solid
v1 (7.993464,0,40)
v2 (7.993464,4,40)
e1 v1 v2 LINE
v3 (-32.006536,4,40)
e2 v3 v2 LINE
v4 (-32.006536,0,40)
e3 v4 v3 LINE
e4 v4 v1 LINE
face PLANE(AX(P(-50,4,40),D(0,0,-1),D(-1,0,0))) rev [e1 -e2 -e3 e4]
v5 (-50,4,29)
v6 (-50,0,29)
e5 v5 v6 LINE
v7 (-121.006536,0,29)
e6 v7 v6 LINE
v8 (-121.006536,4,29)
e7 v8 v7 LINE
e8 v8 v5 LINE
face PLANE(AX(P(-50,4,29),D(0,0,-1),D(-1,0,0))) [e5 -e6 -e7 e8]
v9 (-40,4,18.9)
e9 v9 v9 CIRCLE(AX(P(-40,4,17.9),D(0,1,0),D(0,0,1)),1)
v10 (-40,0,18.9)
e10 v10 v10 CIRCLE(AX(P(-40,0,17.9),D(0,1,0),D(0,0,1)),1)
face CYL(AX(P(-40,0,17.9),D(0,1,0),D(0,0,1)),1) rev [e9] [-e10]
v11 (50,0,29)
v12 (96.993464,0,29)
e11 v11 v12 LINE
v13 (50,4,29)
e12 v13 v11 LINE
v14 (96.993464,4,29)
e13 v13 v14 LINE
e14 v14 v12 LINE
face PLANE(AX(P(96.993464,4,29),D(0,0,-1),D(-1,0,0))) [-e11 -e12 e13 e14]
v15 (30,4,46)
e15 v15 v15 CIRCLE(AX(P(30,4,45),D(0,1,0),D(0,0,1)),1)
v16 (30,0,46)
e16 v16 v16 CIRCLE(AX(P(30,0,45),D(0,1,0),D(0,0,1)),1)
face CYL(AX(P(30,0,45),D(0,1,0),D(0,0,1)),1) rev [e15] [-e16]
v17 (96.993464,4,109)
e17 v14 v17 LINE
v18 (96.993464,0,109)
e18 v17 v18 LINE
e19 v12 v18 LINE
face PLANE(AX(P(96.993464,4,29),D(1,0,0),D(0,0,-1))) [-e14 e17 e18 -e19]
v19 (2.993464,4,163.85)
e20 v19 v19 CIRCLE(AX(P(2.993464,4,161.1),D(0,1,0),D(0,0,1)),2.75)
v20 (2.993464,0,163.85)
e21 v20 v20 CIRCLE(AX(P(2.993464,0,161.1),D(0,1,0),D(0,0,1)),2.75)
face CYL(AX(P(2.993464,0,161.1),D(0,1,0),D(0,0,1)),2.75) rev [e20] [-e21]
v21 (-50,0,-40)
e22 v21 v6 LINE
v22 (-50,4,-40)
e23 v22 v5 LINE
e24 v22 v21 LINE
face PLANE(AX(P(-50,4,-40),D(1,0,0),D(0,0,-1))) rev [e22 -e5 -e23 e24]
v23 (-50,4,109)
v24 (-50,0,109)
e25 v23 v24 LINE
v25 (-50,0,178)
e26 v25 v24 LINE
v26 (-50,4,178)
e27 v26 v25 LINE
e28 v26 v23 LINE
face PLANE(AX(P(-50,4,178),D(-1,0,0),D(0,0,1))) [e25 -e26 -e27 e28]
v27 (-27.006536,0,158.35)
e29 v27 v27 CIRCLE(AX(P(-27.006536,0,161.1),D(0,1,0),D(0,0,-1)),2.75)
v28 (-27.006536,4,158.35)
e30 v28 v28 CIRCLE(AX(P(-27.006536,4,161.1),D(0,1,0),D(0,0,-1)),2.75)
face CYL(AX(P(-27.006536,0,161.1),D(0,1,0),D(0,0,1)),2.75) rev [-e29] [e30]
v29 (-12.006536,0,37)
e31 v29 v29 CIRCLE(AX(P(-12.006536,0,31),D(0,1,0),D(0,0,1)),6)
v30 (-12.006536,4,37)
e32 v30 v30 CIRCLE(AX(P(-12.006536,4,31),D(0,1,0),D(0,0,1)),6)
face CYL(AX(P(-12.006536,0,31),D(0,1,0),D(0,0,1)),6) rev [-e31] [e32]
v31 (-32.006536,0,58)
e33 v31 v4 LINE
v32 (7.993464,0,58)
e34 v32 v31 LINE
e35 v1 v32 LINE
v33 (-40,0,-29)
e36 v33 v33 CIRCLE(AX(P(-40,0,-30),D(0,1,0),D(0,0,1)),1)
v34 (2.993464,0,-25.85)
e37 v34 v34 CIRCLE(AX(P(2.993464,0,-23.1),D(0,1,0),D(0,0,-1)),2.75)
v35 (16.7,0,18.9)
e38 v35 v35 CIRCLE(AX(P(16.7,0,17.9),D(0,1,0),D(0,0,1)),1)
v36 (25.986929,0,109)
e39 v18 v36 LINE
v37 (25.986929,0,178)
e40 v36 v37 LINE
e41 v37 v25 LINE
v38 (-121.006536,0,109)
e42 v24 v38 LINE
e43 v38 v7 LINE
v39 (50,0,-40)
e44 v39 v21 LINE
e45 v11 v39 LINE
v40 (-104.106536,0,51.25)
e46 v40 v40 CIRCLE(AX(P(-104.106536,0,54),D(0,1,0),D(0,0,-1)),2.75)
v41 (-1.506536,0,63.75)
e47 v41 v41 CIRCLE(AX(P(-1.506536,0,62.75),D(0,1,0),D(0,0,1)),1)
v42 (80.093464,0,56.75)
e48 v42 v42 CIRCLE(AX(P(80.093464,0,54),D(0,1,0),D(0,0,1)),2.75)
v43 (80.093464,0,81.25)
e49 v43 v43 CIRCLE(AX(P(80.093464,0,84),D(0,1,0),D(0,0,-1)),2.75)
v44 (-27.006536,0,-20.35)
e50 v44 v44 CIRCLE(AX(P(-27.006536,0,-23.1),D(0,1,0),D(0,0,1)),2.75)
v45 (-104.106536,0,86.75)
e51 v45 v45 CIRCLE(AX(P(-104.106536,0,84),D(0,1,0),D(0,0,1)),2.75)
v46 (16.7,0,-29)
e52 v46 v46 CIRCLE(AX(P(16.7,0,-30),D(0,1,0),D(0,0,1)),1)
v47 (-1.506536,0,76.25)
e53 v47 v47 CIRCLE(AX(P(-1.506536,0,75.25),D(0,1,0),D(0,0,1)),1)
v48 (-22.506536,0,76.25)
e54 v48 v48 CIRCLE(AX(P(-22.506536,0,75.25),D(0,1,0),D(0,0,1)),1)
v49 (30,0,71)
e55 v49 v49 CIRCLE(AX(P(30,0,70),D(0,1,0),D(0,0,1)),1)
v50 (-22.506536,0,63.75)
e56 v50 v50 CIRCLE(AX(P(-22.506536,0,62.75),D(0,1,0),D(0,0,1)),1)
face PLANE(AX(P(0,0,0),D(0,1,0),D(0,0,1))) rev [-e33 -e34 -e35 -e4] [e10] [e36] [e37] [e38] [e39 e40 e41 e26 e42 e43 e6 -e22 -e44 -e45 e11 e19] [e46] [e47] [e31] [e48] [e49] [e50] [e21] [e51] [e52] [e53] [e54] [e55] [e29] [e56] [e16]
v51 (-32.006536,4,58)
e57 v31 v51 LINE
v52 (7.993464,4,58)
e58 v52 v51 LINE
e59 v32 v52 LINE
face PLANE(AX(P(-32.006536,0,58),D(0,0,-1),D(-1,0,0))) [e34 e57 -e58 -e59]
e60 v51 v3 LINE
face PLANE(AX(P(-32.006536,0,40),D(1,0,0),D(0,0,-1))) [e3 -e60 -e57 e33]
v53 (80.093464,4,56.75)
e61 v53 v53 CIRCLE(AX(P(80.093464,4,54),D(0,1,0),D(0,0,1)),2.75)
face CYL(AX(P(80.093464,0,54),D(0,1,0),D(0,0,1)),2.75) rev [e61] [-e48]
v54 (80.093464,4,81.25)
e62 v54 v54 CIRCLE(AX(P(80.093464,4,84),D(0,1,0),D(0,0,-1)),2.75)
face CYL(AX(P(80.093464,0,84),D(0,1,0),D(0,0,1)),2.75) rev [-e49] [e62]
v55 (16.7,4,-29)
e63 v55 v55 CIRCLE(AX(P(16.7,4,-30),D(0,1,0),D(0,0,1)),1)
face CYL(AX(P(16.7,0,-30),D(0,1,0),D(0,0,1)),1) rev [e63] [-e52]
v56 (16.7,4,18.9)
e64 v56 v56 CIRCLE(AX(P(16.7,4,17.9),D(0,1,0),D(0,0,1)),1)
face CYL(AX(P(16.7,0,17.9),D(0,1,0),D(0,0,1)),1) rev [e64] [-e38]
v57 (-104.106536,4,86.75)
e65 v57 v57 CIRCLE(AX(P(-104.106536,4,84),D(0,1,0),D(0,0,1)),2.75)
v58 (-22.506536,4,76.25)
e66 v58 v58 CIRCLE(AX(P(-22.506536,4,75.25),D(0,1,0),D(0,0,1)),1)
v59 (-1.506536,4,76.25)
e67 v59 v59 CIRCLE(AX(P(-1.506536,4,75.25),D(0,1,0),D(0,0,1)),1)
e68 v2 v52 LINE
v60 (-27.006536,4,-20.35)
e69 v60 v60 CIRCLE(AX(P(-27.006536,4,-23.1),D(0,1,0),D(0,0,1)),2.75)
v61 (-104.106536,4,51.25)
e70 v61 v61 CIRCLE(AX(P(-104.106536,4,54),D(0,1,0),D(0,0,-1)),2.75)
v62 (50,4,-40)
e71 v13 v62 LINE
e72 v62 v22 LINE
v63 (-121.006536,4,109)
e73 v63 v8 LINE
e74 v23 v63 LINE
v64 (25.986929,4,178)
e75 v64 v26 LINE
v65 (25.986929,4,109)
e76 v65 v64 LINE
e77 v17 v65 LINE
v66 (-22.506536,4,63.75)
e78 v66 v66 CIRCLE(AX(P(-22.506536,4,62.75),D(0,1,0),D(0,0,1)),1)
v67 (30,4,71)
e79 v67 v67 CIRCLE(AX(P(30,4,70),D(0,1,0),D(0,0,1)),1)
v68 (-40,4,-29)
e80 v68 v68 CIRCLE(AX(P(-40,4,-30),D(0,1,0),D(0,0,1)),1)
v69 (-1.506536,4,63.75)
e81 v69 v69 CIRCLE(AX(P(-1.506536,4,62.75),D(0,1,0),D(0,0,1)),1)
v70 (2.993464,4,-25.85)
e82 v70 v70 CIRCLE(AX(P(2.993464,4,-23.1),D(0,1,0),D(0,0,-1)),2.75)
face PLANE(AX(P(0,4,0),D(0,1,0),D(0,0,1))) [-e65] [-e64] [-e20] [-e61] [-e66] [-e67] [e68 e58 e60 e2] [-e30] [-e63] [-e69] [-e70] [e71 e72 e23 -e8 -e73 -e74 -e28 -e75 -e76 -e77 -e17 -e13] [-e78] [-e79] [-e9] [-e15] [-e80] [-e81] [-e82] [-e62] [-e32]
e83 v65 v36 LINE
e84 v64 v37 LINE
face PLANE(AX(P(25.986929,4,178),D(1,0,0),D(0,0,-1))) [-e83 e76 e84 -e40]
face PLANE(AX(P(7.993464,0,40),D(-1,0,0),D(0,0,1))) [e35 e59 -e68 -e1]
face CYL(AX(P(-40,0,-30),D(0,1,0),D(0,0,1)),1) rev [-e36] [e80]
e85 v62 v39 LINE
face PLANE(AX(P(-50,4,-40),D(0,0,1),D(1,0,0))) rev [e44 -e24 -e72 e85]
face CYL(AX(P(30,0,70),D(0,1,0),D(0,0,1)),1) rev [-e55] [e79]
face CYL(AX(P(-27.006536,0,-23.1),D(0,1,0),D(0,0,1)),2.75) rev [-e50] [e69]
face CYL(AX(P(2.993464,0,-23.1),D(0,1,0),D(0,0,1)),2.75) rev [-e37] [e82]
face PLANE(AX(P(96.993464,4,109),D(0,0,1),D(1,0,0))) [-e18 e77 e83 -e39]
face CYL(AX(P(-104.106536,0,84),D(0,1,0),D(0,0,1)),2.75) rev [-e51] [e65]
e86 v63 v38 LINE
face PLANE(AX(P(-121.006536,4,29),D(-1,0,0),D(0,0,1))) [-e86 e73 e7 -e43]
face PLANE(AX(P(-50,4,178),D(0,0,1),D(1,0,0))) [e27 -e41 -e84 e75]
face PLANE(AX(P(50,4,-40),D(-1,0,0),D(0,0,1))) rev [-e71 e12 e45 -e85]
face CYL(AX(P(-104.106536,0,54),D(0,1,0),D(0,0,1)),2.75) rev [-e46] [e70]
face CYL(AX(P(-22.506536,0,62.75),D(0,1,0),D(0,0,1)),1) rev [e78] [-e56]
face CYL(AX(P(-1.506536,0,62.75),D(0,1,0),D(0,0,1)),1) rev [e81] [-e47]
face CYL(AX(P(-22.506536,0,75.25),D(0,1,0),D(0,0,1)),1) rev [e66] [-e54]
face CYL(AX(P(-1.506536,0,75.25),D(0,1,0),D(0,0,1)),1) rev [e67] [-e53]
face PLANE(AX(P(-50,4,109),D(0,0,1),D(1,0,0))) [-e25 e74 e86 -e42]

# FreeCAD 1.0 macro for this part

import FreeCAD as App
import Part
import Sketcher

V = App.Vector
Q = App.Units.Quantity

doc = App.newDocument("Part")
body = doc.addObject("PartDesign::Body", "Body")

sketch1 = body.newObject("Sketcher::SketchObject", "Sketch")
sketch1.AttachmentSupport = (doc.getObject("XZ_Plane"), [""])
sketch1.MapMode = "FlatFace"
sketch1.addGeometry([
    Part.LineSegment(V(-50, -40, 0), V(-50, 40, 0)),
    Part.LineSegment(V(-50, 40, 0), V(50, 40, 0)),
    Part.LineSegment(V(50, 40, 0), V(50, -40, 0)),
    Part.LineSegment(V(50, -40, 0), V(-50, -40, 0)),
], False)
sketch1.addConstraint([
    Sketcher.Constraint("Coincident", 0, 2, 1, 1),
    Sketcher.Constraint("Coincident", 1, 2, 2, 1),
    Sketcher.Constraint("Coincident", 2, 2, 3, 1),
    Sketcher.Constraint("Coincident", 3, 2, 0, 1),
    Sketcher.Constraint("Vertical", 0),
    Sketcher.Constraint("Horizontal", 1),
    Sketcher.Constraint("Vertical", 2),
    Sketcher.Constraint("Horizontal", 3),
    Sketcher.Constraint("Symmetric", 0, 2, 2, 2, -1, 1),
    Sketcher.Constraint("DistanceX", 1, 1, 1, 2, Q("100 mm")),
    Sketcher.Constraint("DistanceY", 0, 1, 0, 2, Q("80 mm")),
])
pad1 = body.newObject("PartDesign::Pad", "Pad")
pad1.Profile = sketch1
pad1.Length = 4
pad1.Reversed = True

sketch2 = body.newObject("Sketcher::SketchObject", "Sketch001")
sketch2.AttachmentSupport = (doc.getObject("XZ_Plane"), [""])
sketch2.MapMode = "FlatFace"
sketch2.AttachmentOffset = App.Placement(V(0, 0, -4), App.Rotation())
sketch2.addGeometry([
    Part.Circle(V(-40, -30, 0), V(0, 0, 1), 1),
    Part.Circle(V(16.7, -30, 0), V(0, 0, 1), 1),
    Part.Circle(V(16.7, 17.9, 0), V(0, 0, 1), 1),
    Part.Circle(V(-40, 17.9, 0), V(0, 0, 1), 1),
], False)
sketch2.addConstraint([
    Sketcher.Constraint("Equal", 0, 1),
    Sketcher.Constraint("Equal", 1, 2),
    Sketcher.Constraint("Equal", 2, 3),
    Sketcher.Constraint("Horizontal", 0, 3, 1, 3),
    Sketcher.Constraint("Horizontal", 2, 3, 3, 3),
    Sketcher.Constraint("Vertical", 1, 3, 2, 3),
    Sketcher.Constraint("Vertical", 0, 3, 3, 3),
    Sketcher.Constraint("Diameter", 0, Q("2 mm")),
    Sketcher.Constraint("DistanceX", 0, 3, -1, 1, Q("40 mm")),
    Sketcher.Constraint("DistanceY", 0, 3, -1, 1, Q("30 mm")),
    Sketcher.Constraint("DistanceX", -1, 1, 1, 3, Q("16.7 mm")),
    Sketcher.Constraint("DistanceY", -1, 1, 2, 3, Q("17.9 mm")),
])
pocket1 = body.newObject("PartDesign::Pocket", "Pocket")
pocket1.Profile = sketch2
pocket1.Type = "ThroughAll"
pocket1.Reversed = True

sketch3 = body.newObject("Sketcher::SketchObject", "Sketch002")
sketch3.AttachmentSupport = (doc.getObject("XZ_Plane"), [""])
sketch3.MapMode = "FlatFace"
sketch3.AttachmentOffset = App.Placement(V(0, 0, -4), App.Rotation())
sketch3.addGeometry([
    Part.LineSegment(V(50, 40, 0), V(8, 40, 0)),
    Part.LineSegment(V(8, 40, 0), V(8, 58, 0)),
    Part.LineSegment(V(8, 58, 0), V(-32, 58, 0)),
    Part.LineSegment(V(-32, 58, 0), V(-32, 40, 0)),
    Part.LineSegment(V(-32, 40, 0), V(-50, 40, 0)),
    Part.LineSegment(V(-50, 40, 0), V(-50, 80, 0)),
    Part.LineSegment(V(-50, 80, 0), V(50, 80, 0)),
    Part.LineSegment(V(50, 80, 0), V(50, 40, 0)),
], False)
sketch3.addConstraint([
    Sketcher.Constraint("Coincident", 0, 2, 1, 1),
    Sketcher.Constraint("Coincident", 1, 2, 2, 1),
    Sketcher.Constraint("Coincident", 2, 2, 3, 1),
    Sketcher.Constraint("Coincident", 3, 2, 4, 1),
    Sketcher.Constraint("Coincident", 4, 2, 5, 1),
    Sketcher.Constraint("Coincident", 5, 2, 6, 1),
    Sketcher.Constraint("Coincident", 6, 2, 7, 1),
    Sketcher.Constraint("Coincident", 7, 2, 0, 1),
    Sketcher.Constraint("Horizontal", 0),
    Sketcher.Constraint("Vertical", 1),
    Sketcher.Constraint("Horizontal", 2),
    Sketcher.Constraint("Vertical", 3),
    Sketcher.Constraint("Horizontal", 4),
    Sketcher.Constraint("Vertical", 5),
    Sketcher.Constraint("Horizontal", 6),
    Sketcher.Constraint("Vertical", 7),
    Sketcher.Constraint("Symmetric", 4, 2, 7, 2, -2),
    Sketcher.Constraint("Equal", 2, 5),
    Sketcher.Constraint("DistanceX", 2, 2, 2, 1, Q("40 mm")),
    Sketcher.Constraint("DistanceX", 6, 1, 6, 2, Q("100 mm")),
    Sketcher.Constraint("DistanceY", 1, 1, 1, 2, Q("18 mm")),
    Sketcher.Constraint("DistanceY", -1, 1, 0, 2, Q("40 mm")),
    Sketcher.Constraint("DistanceX", 0, 2, 0, 1, Q("42.006536 mm")),
])
pad2 = body.newObject("PartDesign::Pad", "Pad001")
pad2.Profile = sketch3
pad2.Length = 4

sketch4 = body.newObject("Sketcher::SketchObject", "Sketch003")
sketch4.AttachmentSupport = (doc.getObject("XZ_Plane"), [""])
sketch4.MapMode = "FlatFace"
sketch4.AttachmentOffset = App.Placement(V(0, 0, -4), App.Rotation())
sketch4.addGeometry([
    Part.Circle(V(-22.5, 62.8, 0), V(0, 0, 1), 1),
    Part.Circle(V(-22.5, 75.2, 0), V(0, 0, 1), 1),
    Part.Circle(V(-1.5, 75.2, 0), V(0, 0, 1), 1),
    Part.Circle(V(-1.5, 62.8, 0), V(0, 0, 1), 1),
], False)
sketch4.addConstraint([
    Sketcher.Constraint("Equal", 0, 1),
    Sketcher.Constraint("Equal", 1, 2),
    Sketcher.Constraint("Equal", 2, 3),
    Sketcher.Constraint("Horizontal", 1, 3, 2, 3),
    Sketcher.Constraint("Horizontal", 0, 3, 3, 3),
    Sketcher.Constraint("Vertical", 0, 3, 1, 3),
    Sketcher.Constraint("Vertical", 2, 3, 3, 3),
    Sketcher.Constraint("Diameter", 0, Q("2 mm")),
    Sketcher.Constraint("DistanceX", 1, 3, 2, 3, Q("21 mm")),
    Sketcher.Constraint("DistanceY", 0, 3, 1, 3, Q("12.5 mm")),
    Sketcher.Constraint("DistanceY", -1, 1, 0, 3, Q("62.75 mm")),
    Sketcher.Constraint("DistanceX", 0, 3, -1, 1, Q("22.506536 mm")),
])
pocket2 = body.newObject("PartDesign::Pocket", "Pocket001")
pocket2.Profile = sketch4
pocket2.Length = 4
pocket2.Reversed = True

sketch5 = body.newObject("Sketcher::SketchObject", "Sketch004")
sketch5.AttachmentSupport = (doc.getObject("XZ_Plane"), [""])
sketch5.MapMode = "FlatFace"
sketch5.AttachmentOffset = App.Placement(V(0, 0, -4), App.Rotation())
sketch5.addGeometry([
    Part.Circle(V(30, 45, 0), V(0, 0, 1), 1),
    Part.Circle(V(30, 70, 0), V(0, 0, 1), 1),
], False)
sketch5.addConstraint([
    Sketcher.Constraint("Equal", 0, 1),
    Sketcher.Constraint("Vertical", 0, 3, 1, 3),
    Sketcher.Constraint("Diameter", 0, Q("2 mm")),
    Sketcher.Constraint("DistanceX", -1, 1, 0, 3, Q("30 mm")),
    Sketcher.Constraint("DistanceY", -1, 1, 0, 3, Q("45 mm")),
    Sketcher.Constraint("DistanceY", -1, 1, 1, 3, Q("70 mm")),
])
pocket3 = body.newObject("PartDesign::Pocket", "Pocket002")
pocket3.Profile = sketch5
pocket3.Length = 4
pocket3.Reversed = True

sketch6 = body.newObject("Sketcher::SketchObject", "Sketch005")
sketch6.AttachmentSupport = (doc.getObject("XZ_Plane"), [""])
sketch6.MapMode = "FlatFace"
sketch6.AttachmentOffset = App.Placement(V(0, 0, -4), App.Rotation())
sketch6.addGeometry(Part.Circle(V(-12, 31, 0), V(0, 0, 1), 6), False)
sketch6.addConstraint([
    Sketcher.Constraint("Diameter", 0, Q("12 mm")),
    Sketcher.Constraint("DistanceY", -1, 1, 0, 3, Q("31 mm")),
    Sketcher.Constraint("DistanceX", 0, 3, -1, 1, Q("12.006536 mm")),
])
pocket4 = body.newObject("PartDesign::Pocket", "Pocket003")
pocket4.Profile = sketch6
pocket4.Type = "ThroughAll"
pocket4.Reversed = True

sketch7 = body.newObject("Sketcher::SketchObject", "Sketch006")
sketch7.AttachmentSupport = (doc.getObject("XZ_Plane"), [""])
sketch7.MapMode = "FlatFace"
sketch7.addGeometry([
    Part.LineSegment(V(50, 29, 0), V(97, 29, 0)),
    Part.LineSegment(V(97, 29, 0), V(97, 109, 0)),
    Part.LineSegment(V(97, 109, 0), V(26, 109, 0)),
    Part.LineSegment(V(26, 109, 0), V(26, 178, 0)),
    Part.LineSegment(V(26, 178, 0), V(-50, 178, 0)),
    Part.LineSegment(V(-50, 178, 0), V(-50, 109, 0)),
    Part.LineSegment(V(-50, 109, 0), V(-121, 109, 0)),
    Part.LineSegment(V(-121, 109, 0), V(-121, 29, 0)),
    Part.LineSegment(V(-121, 29, 0), V(-50, 29, 0)),
    Part.LineSegment(V(-50, 29, 0), V(-50, 80, 0)),
    Part.LineSegment(V(-50, 80, 0), V(50, 80, 0)),
    Part.LineSegment(V(50, 80, 0), V(50, 29, 0)),
], False)
sketch7.addConstraint([
    Sketcher.Constraint("Coincident", 0, 2, 1, 1),
    Sketcher.Constraint("Coincident", 1, 2, 2, 1),
    Sketcher.Constraint("Coincident", 2, 2, 3, 1),
    Sketcher.Constraint("Coincident", 3, 2, 4, 1),
    Sketcher.Constraint("Coincident", 4, 2, 5, 1),
    Sketcher.Constraint("Coincident", 5, 2, 6, 1),
    Sketcher.Constraint("Coincident", 6, 2, 7, 1),
    Sketcher.Constraint("Coincident", 7, 2, 8, 1),
    Sketcher.Constraint("Coincident", 8, 2, 9, 1),
    Sketcher.Constraint("Coincident", 9, 2, 10, 1),
    Sketcher.Constraint("Coincident", 10, 2, 11, 1),
    Sketcher.Constraint("Coincident", 11, 2, 0, 1),
    Sketcher.Constraint("Horizontal", 0),
    Sketcher.Constraint("Vertical", 1),
    Sketcher.Constraint("Horizontal", 2),
    Sketcher.Constraint("Vertical", 3),
    Sketcher.Constraint("Horizontal", 4),
    Sketcher.Constraint("Vertical", 5),
    Sketcher.Constraint("Horizontal", 6),
    Sketcher.Constraint("Vertical", 7),
    Sketcher.Constraint("Horizontal", 8),
    Sketcher.Constraint("Vertical", 9),
    Sketcher.Constraint("Horizontal", 10),
    Sketcher.Constraint("Vertical", 11),
    Sketcher.Constraint("Symmetric", 8, 2, 11, 2, -2),
    Sketcher.Constraint("Horizontal", 2, 2, 5, 2),
    Sketcher.Constraint("Vertical", 5, 2, 8, 2),
    Sketcher.Constraint("Equal", 2, 6),
    Sketcher.Constraint("DistanceX", 10, 1, 10, 2, Q("100 mm")),
    Sketcher.Constraint("DistanceY", 1, 1, 1, 2, Q("80 mm")),
    Sketcher.Constraint("DistanceY", 3, 1, 3, 2, Q("69 mm")),
    Sketcher.Constraint("DistanceY", 9, 1, 9, 2, Q("51 mm")),
    Sketcher.Constraint("DistanceY", -1, 1, 0, 2, Q("29 mm")),
    Sketcher.Constraint("DistanceX", 6, 2, 1, 2, Q("218 mm")),
    Sketcher.Constraint("DistanceX", 4, 2, 4, 1, Q("75.986929 mm")),
])
pad3 = body.newObject("PartDesign::Pad", "Pad002")
pad3.Profile = sketch7
pad3.Length = 4
pad3.Reversed = True

sketch8 = body.newObject("Sketcher::SketchObject", "Sketch007")
sketch8.AttachmentSupport = (doc.getObject("XZ_Plane"), [""])
sketch8.MapMode = "FlatFace"
sketch8.AttachmentOffset = App.Placement(V(0, 0, -4), App.Rotation())
sketch8.addGeometry([
    Part.Circle(V(-104.1, 84, 0), V(0, 0, 1), 2.8),
    Part.Circle(V(-104.1, 54, 0), V(0, 0, 1), 2.8),
    Part.Circle(V(80.1, 54, 0), V(0, 0, 1), 2.8),
    Part.Circle(V(80.1, 84, 0), V(0, 0, 1), 2.8),
    Part.Circle(V(-27, -23.1, 0), V(0, 0, 1), 2.8),
    Part.Circle(V(3, -23.1, 0), V(0, 0, 1), 2.8),
    Part.Circle(V(3, 161.1, 0), V(0, 0, 1), 2.8),
    Part.Circle(V(-27, 161.1, 0), V(0, 0, 1), 2.8),
], False)
sketch8.addConstraint([
    Sketcher.Constraint("Equal", 0, 1),
    Sketcher.Constraint("Equal", 1, 2),
    Sketcher.Constraint("Equal", 2, 3),
    Sketcher.Constraint("Equal", 3, 4),
    Sketcher.Constraint("Equal", 4, 5),
    Sketcher.Constraint("Equal", 5, 6),
    Sketcher.Constraint("Equal", 6, 7),
    Sketcher.Constraint("Horizontal", 1, 3, 2, 3),
    Sketcher.Constraint("Horizontal", 0, 3, 3, 3),
    Sketcher.Constraint("Horizontal", 4, 3, 5, 3),
    Sketcher.Constraint("Horizontal", 6, 3, 7, 3),
    Sketcher.Constraint("Vertical", 0, 3, 1, 3),
    Sketcher.Constraint("Vertical", 2, 3, 3, 3),
    Sketcher.Constraint("Vertical", 5, 3, 6, 3),
    Sketcher.Constraint("Vertical", 4, 3, 7, 3),
    Sketcher.Constraint("Diameter", 0, Q("5.5 mm")),
    Sketcher.Constraint("DistanceY", -1, 1, 0, 3, Q("84 mm")),
    Sketcher.Constraint("DistanceY", -1, 1, 1, 3, Q("54 mm")),
    Sketcher.Constraint("DistanceX", 4, 3, 5, 3, Q("30 mm")),
    Sketcher.Constraint("DistanceY", 4, 3, -1, 1, Q("23.1 mm")),
    Sketcher.Constraint("DistanceY", -1, 1, 6, 3, Q("161.1 mm")),
    Sketcher.Constraint("DistanceX", 1, 3, 2, 3, Q("184.2 mm")),
    Sketcher.Constraint("DistanceX", 1, 3, 4, 3, Q("77.1 mm")),
    Sketcher.Constraint("DistanceX", 0, 3, -1, 1, Q("104.106536 mm")),
])
pocket5 = body.newObject("PartDesign::Pocket", "Pocket004")
pocket5.Profile = sketch8
pocket5.Type = "ThroughAll"
pocket5.Reversed = True

doc.recompute()
